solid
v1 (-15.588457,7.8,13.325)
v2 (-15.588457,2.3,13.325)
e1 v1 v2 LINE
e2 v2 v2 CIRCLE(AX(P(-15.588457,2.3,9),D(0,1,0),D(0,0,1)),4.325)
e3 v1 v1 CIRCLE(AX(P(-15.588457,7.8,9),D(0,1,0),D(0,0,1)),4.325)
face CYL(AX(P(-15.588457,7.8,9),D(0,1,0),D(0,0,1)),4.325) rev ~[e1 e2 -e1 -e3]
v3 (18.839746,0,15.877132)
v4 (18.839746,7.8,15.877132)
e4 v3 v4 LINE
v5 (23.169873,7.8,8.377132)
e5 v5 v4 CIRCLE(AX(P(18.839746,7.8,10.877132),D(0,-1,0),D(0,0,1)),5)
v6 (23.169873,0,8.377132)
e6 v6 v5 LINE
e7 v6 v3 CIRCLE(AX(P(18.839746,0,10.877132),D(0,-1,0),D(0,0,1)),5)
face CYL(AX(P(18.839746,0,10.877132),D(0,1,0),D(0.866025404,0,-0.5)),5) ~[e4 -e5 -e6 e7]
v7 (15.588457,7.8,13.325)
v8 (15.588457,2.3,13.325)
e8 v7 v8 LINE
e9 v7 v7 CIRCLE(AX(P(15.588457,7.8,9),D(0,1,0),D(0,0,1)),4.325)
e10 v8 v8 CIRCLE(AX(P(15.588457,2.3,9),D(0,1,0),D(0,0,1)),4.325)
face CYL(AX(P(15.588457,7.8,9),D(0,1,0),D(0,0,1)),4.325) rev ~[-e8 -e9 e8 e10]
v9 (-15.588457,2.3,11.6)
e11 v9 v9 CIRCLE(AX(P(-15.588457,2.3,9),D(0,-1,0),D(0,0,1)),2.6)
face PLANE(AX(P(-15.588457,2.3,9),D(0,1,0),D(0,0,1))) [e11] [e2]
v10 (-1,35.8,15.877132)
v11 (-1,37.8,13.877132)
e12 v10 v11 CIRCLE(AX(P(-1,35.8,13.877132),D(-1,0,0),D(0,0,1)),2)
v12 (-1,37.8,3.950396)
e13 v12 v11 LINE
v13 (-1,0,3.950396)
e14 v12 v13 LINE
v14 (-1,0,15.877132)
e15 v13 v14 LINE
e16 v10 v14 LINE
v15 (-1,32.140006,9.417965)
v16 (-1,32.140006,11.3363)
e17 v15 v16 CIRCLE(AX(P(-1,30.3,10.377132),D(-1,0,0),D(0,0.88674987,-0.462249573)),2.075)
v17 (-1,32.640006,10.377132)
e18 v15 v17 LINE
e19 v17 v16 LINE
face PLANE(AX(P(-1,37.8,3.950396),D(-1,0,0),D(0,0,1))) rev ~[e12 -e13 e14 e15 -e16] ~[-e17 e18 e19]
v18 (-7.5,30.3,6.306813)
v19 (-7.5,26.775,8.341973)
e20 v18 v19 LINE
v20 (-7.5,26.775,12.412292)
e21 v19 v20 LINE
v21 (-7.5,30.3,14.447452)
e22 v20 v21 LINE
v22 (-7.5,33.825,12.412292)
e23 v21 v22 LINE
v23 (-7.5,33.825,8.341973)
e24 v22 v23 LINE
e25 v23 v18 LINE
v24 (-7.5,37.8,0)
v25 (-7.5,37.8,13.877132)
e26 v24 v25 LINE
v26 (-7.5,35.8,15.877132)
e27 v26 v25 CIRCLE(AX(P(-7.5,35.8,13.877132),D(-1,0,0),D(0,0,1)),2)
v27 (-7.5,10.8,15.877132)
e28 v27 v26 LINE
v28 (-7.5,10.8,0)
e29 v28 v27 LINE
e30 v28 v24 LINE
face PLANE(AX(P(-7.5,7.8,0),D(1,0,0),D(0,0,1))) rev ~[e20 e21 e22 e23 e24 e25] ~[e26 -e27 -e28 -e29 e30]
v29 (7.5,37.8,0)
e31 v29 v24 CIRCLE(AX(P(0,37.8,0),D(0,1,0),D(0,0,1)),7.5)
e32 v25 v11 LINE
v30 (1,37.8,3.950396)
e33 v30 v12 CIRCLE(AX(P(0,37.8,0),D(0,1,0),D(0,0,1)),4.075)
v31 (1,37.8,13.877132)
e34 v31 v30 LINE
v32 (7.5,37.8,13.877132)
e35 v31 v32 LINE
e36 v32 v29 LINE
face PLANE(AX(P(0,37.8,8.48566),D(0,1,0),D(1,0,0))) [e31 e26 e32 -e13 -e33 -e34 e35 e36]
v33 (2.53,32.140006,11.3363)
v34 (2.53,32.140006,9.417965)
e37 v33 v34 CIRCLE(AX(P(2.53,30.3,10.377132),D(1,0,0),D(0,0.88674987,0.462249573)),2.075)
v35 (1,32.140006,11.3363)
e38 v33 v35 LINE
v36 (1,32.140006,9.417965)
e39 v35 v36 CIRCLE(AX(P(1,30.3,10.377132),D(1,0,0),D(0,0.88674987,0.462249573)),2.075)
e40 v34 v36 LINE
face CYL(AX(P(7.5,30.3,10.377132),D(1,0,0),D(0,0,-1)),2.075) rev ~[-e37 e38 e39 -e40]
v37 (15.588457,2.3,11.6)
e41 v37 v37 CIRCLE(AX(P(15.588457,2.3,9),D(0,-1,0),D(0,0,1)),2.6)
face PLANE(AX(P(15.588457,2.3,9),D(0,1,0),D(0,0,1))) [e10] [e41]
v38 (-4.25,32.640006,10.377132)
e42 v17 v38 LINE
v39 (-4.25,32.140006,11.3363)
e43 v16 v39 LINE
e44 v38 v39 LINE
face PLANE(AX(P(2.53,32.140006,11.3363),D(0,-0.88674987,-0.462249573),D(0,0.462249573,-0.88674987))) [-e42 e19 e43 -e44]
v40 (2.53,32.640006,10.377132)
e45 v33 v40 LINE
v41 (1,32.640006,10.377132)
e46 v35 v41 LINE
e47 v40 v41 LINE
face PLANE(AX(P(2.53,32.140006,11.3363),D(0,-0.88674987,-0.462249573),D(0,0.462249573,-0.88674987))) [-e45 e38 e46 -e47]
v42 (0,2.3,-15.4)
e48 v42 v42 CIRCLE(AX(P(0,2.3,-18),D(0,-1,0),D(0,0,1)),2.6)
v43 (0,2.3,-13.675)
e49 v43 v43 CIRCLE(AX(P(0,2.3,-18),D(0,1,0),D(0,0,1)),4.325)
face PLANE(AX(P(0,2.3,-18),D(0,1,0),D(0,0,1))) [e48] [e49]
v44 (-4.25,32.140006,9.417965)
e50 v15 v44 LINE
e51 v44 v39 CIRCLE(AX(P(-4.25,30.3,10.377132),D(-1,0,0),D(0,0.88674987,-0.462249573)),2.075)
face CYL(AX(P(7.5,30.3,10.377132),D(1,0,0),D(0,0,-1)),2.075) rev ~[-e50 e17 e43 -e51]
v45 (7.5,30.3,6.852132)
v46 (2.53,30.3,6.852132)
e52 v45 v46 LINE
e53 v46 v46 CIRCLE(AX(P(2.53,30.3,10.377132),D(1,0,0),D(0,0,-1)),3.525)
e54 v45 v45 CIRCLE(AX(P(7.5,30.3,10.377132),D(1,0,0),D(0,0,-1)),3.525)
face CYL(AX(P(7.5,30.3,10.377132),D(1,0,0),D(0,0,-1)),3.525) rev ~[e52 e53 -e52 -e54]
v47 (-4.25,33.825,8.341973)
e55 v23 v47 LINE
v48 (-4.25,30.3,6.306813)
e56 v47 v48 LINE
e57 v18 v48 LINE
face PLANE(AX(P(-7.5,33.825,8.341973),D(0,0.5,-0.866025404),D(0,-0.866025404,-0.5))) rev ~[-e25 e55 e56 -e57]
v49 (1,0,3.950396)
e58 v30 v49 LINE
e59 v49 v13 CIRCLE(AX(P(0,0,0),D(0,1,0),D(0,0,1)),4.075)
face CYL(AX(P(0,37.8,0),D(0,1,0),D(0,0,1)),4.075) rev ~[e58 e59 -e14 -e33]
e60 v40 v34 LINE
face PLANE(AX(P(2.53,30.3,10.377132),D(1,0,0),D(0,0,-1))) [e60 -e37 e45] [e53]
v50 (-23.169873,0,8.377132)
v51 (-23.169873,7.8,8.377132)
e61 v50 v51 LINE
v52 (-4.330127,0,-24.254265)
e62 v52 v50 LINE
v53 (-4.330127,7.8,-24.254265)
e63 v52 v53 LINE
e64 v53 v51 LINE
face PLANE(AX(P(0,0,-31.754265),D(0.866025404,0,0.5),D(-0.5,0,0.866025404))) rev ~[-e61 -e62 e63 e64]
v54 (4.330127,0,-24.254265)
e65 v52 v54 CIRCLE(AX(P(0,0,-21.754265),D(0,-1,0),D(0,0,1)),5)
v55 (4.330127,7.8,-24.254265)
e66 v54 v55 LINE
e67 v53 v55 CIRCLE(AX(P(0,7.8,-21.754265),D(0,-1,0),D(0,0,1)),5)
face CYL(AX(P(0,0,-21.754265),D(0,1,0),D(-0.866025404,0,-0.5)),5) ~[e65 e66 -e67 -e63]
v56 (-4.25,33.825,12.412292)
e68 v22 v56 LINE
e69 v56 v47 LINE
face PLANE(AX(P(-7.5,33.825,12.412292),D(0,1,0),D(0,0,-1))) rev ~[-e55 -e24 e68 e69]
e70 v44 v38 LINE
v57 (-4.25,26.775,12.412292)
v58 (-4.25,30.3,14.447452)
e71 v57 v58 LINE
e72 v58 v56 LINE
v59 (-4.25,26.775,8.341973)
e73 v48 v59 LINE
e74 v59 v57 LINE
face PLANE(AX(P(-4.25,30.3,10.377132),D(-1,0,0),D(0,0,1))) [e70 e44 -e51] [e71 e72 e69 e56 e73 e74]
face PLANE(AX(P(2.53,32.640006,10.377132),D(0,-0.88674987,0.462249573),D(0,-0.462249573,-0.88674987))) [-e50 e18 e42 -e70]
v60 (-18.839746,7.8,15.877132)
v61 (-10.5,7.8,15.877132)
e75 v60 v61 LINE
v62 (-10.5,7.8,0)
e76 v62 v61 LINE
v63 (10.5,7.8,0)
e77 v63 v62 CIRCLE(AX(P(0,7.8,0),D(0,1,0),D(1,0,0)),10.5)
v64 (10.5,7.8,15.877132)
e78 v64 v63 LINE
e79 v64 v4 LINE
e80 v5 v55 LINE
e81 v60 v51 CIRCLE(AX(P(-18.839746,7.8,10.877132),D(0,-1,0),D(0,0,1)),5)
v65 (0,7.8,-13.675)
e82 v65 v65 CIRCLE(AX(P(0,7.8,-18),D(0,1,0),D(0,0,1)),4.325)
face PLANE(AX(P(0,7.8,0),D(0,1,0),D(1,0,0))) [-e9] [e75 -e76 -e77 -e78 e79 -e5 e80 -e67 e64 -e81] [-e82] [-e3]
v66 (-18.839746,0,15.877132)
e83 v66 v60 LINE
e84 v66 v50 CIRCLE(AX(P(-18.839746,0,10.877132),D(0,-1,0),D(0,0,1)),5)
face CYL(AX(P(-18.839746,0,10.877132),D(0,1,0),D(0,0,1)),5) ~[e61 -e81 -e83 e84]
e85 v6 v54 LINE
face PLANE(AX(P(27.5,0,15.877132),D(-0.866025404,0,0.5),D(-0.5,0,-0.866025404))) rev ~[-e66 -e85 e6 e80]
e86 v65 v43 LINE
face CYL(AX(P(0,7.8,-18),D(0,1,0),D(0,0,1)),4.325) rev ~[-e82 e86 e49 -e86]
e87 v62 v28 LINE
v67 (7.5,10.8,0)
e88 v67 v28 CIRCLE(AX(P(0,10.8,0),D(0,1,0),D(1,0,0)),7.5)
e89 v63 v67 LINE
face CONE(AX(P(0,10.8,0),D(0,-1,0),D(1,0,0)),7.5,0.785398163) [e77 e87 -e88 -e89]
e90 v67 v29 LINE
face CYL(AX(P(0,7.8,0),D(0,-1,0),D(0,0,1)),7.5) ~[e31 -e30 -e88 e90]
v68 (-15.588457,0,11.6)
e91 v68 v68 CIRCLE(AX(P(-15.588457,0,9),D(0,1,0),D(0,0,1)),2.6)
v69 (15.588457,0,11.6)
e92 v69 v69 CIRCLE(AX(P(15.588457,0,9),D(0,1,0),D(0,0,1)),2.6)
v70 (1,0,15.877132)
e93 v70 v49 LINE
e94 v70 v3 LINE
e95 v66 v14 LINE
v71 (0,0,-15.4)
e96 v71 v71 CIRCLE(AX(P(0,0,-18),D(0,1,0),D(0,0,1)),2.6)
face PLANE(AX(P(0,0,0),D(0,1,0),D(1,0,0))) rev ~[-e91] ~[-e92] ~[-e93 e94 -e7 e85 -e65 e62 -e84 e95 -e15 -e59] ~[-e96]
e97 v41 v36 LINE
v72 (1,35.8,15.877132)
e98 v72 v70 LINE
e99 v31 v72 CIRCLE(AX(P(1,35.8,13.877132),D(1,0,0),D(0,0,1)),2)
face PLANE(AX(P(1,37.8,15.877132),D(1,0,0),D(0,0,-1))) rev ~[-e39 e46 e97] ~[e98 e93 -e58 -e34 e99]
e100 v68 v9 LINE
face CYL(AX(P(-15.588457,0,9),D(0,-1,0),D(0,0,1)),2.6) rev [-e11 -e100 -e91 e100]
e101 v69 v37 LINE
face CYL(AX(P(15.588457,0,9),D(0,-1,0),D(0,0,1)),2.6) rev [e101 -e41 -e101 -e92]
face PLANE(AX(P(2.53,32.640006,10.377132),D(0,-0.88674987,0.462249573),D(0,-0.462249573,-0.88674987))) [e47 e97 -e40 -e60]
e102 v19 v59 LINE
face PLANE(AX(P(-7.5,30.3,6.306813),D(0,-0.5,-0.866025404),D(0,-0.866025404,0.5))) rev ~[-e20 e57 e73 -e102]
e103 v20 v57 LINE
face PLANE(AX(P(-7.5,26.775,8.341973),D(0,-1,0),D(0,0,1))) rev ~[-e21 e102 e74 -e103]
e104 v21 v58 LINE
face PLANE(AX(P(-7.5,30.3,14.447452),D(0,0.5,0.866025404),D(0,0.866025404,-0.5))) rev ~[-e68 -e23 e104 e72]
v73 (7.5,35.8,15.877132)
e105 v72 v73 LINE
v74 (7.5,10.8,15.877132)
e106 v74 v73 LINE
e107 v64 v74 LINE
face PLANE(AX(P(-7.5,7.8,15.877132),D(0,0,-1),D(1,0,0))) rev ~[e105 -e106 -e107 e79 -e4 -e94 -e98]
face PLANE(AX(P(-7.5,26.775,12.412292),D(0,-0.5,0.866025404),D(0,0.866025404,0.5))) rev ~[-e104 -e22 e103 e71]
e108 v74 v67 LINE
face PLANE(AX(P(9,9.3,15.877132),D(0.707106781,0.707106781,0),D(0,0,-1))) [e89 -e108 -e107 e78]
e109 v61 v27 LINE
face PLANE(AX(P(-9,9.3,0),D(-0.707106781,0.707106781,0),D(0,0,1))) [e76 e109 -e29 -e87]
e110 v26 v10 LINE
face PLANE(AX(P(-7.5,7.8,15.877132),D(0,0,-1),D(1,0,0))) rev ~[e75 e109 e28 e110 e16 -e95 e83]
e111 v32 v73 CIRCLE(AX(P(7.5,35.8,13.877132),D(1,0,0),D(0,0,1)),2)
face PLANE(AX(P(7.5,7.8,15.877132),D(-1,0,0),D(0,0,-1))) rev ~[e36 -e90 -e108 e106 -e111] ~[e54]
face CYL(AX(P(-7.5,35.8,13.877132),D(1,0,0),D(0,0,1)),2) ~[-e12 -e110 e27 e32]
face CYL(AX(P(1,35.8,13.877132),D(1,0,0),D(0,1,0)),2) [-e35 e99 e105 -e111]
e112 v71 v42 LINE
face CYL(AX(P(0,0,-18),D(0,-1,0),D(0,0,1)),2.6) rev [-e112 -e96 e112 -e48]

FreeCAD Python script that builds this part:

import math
import FreeCAD as App
import Part
import Sketcher
from FreeCAD import Vector
Q = App.Units.Quantity


def edges_at(feature, points):
    """Names of the edges that pass closest to the given points."""
    edges = feature.Shape.Edges
    near = lambda p: min(range(len(edges)), key=lambda i: edges[i].distToShape(Part.Vertex(*p))[0])
    return sorted({f"Edge{near(p) + 1}" for p in points})


def add_polygon(sketch, points):
    """Adds a closed chain of lines whose ends are joined by coincident constraints."""
    first, n = sketch.GeometryCount, len(points)
    for a, b in zip(points, points[1:] + points[:1]):
        sketch.addGeometry(Part.LineSegment(App.Vector(*a, 0), App.Vector(*b, 0)), False)
    for i in range(n):
        sketch.addConstraint(Sketcher.Constraint("Coincident", first + i, 2, first + (i + 1) % n, 1))

doc = App.newDocument("Part")
body = doc.addObject("PartDesign::Body", "Body")

# Sketch on XZ plane
sketch1 = doc.addObject("Sketcher::SketchObject", "Sketch")
body.addObject(sketch1)
sketch1.AttachmentSupport = (doc.XZ_Plane, [""])
sketch1.MapMode = "FlatFace"
add_polygon(sketch1, [(-27.5, 15.877132), (27.5, 15.877132), (0, -31.754265)])  # lines 0-2
sketch1.addGeometry(Part.Circle(Vector(-15.588457, 9, 0), Vector(0, 0, 1), 2.6), False)  # 3
sketch1.addGeometry(Part.Circle(Vector(15.588457, 9, 0), Vector(0, 0, 1), 2.6), False)  # 4
sketch1.addGeometry(Part.Circle(Vector(0, -18, 0), Vector(0, 0, 1), 2.6), False)  # 5
sketch1.addConstraint(Sketcher.Constraint("Horizontal", 0))
sketch1.addConstraint(Sketcher.Constraint("Equal", 3, 4))
sketch1.addConstraint(Sketcher.Constraint("Equal", 4, 5))
sketch1.addConstraint(Sketcher.Constraint("Symmetric", 3, 3, 4, 3, -2))
sketch1.addConstraint(Sketcher.Constraint("PointOnObject", 5, 3, -2))
sketch1.addConstraint(Sketcher.Constraint("PointOnObject", 1, 2, -2))
sketch1.addConstraint(Sketcher.Constraint("Equal", 1, 2))
sketch1.addConstraint(Sketcher.Constraint("Diameter", 3, Q("5.2 mm")))
sketch1.addConstraint(Sketcher.Constraint("DistanceX", 0, 1, 0, 2, Q("55 mm")))
sketch1.addConstraint(Sketcher.Constraint("Angle", 1, Q("-120 deg")))
sketch1.addConstraint(Sketcher.Constraint("DistanceY", -1, 1, 3, 3, Q("9 mm")))
sketch1.addConstraint(Sketcher.Constraint("DistanceY", 5, 3, -1, 1, Q("18 mm")))
sketch1.addConstraint(Sketcher.Constraint("DistanceX", 3, 3, -1, 1, Q("15.588457 mm")))
sketch1.addConstraint(Sketcher.Constraint("DistanceY", -1, 1, 0, 2, Q("15.877132 mm")))
pad1 = doc.addObject("PartDesign::Pad", "Pad")
body.addObject(pad1)
pad1.Profile = sketch1
pad1.Length = 7.8
pad1.Reversed = True

# Sketch on XZ plane
sketch2 = doc.addObject("Sketcher::SketchObject", "Sketch001")
body.addObject(sketch2)
sketch2.AttachmentSupport = (doc.XZ_Plane, [""])
sketch2.MapMode = "FlatFace"
sketch2.AttachmentOffset = App.Placement(Vector(0, 0, -7.8), App.Rotation())
sketch2.addGeometry(Part.Circle(Vector(0, 0, 0), Vector(0, 0, 1), 7.5), False)
sketch2.addConstraint(Sketcher.Constraint("Coincident", 0, 3, -1, 1))
sketch2.addConstraint(Sketcher.Constraint("Diameter", 0, Q("15 mm")))
pad2 = doc.addObject("PartDesign::Pad", "Pad001")
body.addObject(pad2)
pad2.Profile = sketch2
pad2.Length = 30
pad2.Reversed = True

# Sketch on XZ plane
sketch3 = doc.addObject("Sketcher::SketchObject", "Sketch002")
body.addObject(sketch3)
sketch3.AttachmentSupport = (doc.XZ_Plane, [""])
sketch3.MapMode = "FlatFace"
sketch3.AttachmentOffset = App.Placement(Vector(0, 0, -7.8), App.Rotation())
sketch3.addGeometry(Part.LineSegment(Vector(-7.5, 0, 0), Vector(-7.5, 15.877132, 0)), False)
sketch3.addGeometry(Part.LineSegment(Vector(-7.5, 15.877132, 0), Vector(7.5, 15.877132, 0)), False)
sketch3.addGeometry(Part.LineSegment(Vector(7.5, 15.877132, 0), Vector(7.5, 0, 0)), False)
sketch3.addGeometry(Part.ArcOfCircle(Part.Circle(Vector(0, 0, 0), Vector(0, 0, 1), 7.5), math.radians(0), math.radians(180)), False)
sketch3.addConstraint(Sketcher.Constraint("Coincident", 0, 2, 1, 1))
sketch3.addConstraint(Sketcher.Constraint("Coincident", 1, 2, 2, 1))
sketch3.addConstraint(Sketcher.Constraint("Tangent", 2, 2, 3, 1))
sketch3.addConstraint(Sketcher.Constraint("Tangent", 3, 2, 0, 1))
sketch3.addConstraint(Sketcher.Constraint("Vertical", 0))
sketch3.addConstraint(Sketcher.Constraint("Horizontal", 1))
sketch3.addConstraint(Sketcher.Constraint("Vertical", 2))
sketch3.addConstraint(Sketcher.Constraint("Coincident", 3, 3, -1, 1))
sketch3.addConstraint(Sketcher.Constraint("Radius", 3, Q("7.5 mm")))
sketch3.addConstraint(Sketcher.Constraint("DistanceY", 0, 1, 0, 2, Q("15.877132 mm")))
pad3 = doc.addObject("PartDesign::Pad", "Pad002")
body.addObject(pad3)
pad3.Profile = sketch3
pad3.Length = 30
pad3.Reversed = True

# Sketch on XZ plane
sketch4 = doc.addObject("Sketcher::SketchObject", "Sketch003")
body.addObject(sketch4)
sketch4.AttachmentSupport = (doc.XZ_Plane, [""])
sketch4.MapMode = "FlatFace"
sketch4.AttachmentOffset = App.Placement(Vector(0, 0, -37.8), App.Rotation())
sketch4.addGeometry(Part.Circle(Vector(0, 0, 0), Vector(0, 0, 1), 4.075), False)
sketch4.addConstraint(Sketcher.Constraint("Coincident", 0, 3, -1, 1))
sketch4.addConstraint(Sketcher.Constraint("Diameter", 0, Q("8.15 mm")))
pocket1 = doc.addObject("PartDesign::Pocket", "Pocket")
body.addObject(pocket1)
pocket1.Profile = sketch4
pocket1.Type = "ThroughAll"
pocket1.Reversed = True

# Sketch on XZ plane
sketch5 = doc.addObject("Sketcher::SketchObject", "Sketch004")
body.addObject(sketch5)
sketch5.AttachmentSupport = (doc.XZ_Plane, [""])
sketch5.MapMode = "FlatFace"
sketch5.AttachmentOffset = App.Placement(Vector(0, 0, -37.8), App.Rotation())
sketch5.addGeometry(Part.LineSegment(Vector(-1, 3.950396, 0), Vector(-1, 15.877132, 0)), False)
sketch5.addGeometry(Part.LineSegment(Vector(-1, 15.877132, 0), Vector(1, 15.877132, 0)), False)
sketch5.addGeometry(Part.LineSegment(Vector(1, 15.877132, 0), Vector(1, 3.950396, 0)), False)
sketch5.addGeometry(Part.ArcOfCircle(Part.Circle(Vector(0, 0, 0), Vector(0, 0, 1), 4.075), math.radians(75.794599), math.radians(104.205401)), False)
sketch5.addConstraint(Sketcher.Constraint("Coincident", 0, 2, 1, 1))
sketch5.addConstraint(Sketcher.Constraint("Coincident", 1, 2, 2, 1))
sketch5.addConstraint(Sketcher.Constraint("Coincident", 2, 2, 3, 1))
sketch5.addConstraint(Sketcher.Constraint("Coincident", 3, 2, 0, 1))
sketch5.addConstraint(Sketcher.Constraint("Vertical", 0))
sketch5.addConstraint(Sketcher.Constraint("Horizontal", 1))
sketch5.addConstraint(Sketcher.Constraint("Vertical", 2))
sketch5.addConstraint(Sketcher.Constraint("Coincident", 3, 3, -1, 1))
sketch5.addConstraint(Sketcher.Constraint("Horizontal", 2, 2, 3, 2))
sketch5.addConstraint(Sketcher.Constraint("DistanceX", 1, 1, 1, 2, Q("2 mm")))
sketch5.addConstraint(Sketcher.Constraint("Radius", 3, Q("4.075 mm")))
sketch5.addConstraint(Sketcher.Constraint("DistanceY", 0, 1, 0, 2, Q("11.926737 mm")))
pocket2 = doc.addObject("PartDesign::Pocket", "Pocket001")
body.addObject(pocket2)
pocket2.Profile = sketch5
pocket2.Type = "ThroughAll"
pocket2.Reversed = True
doc.recompute()

fillet = doc.addObject("PartDesign::Fillet", "Fillet")
body.addObject(fillet)
fillet.Base = (pocket2, edges_at(pocket2, [(0, 3.9, -31.754), (27.5, 3.9, 15.877), (-27.5, 3.9, 15.877)]))
fillet.Radius = 5

# Sketch on YZ plane
sketch6 = doc.addObject("Sketcher::SketchObject", "Sketch005")
body.addObject(sketch6)
sketch6.AttachmentSupport = (doc.YZ_Plane, [""])
sketch6.MapMode = "FlatFace"
sketch6.AttachmentOffset = App.Placement(Vector(0, 0, 7.5), App.Rotation())
sketch6.addGeometry(Part.Circle(Vector(30.3, 10.377132, 0), Vector(0, 0, 1), 2.075), False)
sketch6.addConstraint(Sketcher.Constraint("Diameter", 0, Q("4.15 mm")))
sketch6.addConstraint(Sketcher.Constraint("DistanceX", -1, 1, 0, 3, Q("30.3 mm")))
sketch6.addConstraint(Sketcher.Constraint("DistanceY", -1, 1, 0, 3, Q("10.377132 mm")))
pocket3 = doc.addObject("PartDesign::Pocket", "Pocket002")
body.addObject(pocket3)
pocket3.Profile = sketch6
pocket3.Type = "ThroughAll"

# Sketch on YZ plane
sketch7 = doc.addObject("Sketcher::SketchObject", "Sketch006")
body.addObject(sketch7)
sketch7.AttachmentSupport = (doc.YZ_Plane, [""])
sketch7.MapMode = "FlatFace"
sketch7.AttachmentOffset = App.Placement(Vector(0, 0, -7.5), App.Rotation())
add_polygon(sketch7, [(33.825, 12.412292), (33.825, 8.341973), (30.3, 6.306813), (26.775, 8.341973), (26.775, 12.412292), (30.3, 14.447452)])  # lines 0-5
sketch7.addConstraint(Sketcher.Constraint("Vertical", 0))
sketch7.addConstraint(Sketcher.Constraint("Vertical", 3))
sketch7.addConstraint(Sketcher.Constraint("Parallel", 1, 4))
sketch7.addConstraint(Sketcher.Constraint("Parallel", 2, 5))
sketch7.addConstraint(Sketcher.Constraint("Horizontal", 0, 2, 2, 2))
sketch7.addConstraint(Sketcher.Constraint("Horizontal", 3, 2, 5, 2))
sketch7.addConstraint(Sketcher.Constraint("Vertical", 1, 2, 4, 2))
sketch7.addConstraint(Sketcher.Constraint("Angle", 1, Q("-150 deg")))
sketch7.addConstraint(Sketcher.Constraint("DistanceX", -1, 1, 1, 2, Q("30.3 mm")))
sketch7.addConstraint(Sketcher.Constraint("DistanceX", 2, 2, 0, 2, Q("7.05 mm")))
sketch7.addConstraint(Sketcher.Constraint("DistanceY", 0, 2, 0, 1, Q("4.070319 mm")))
sketch7.addConstraint(Sketcher.Constraint("DistanceY", -1, 1, 4, 2, Q("14.447452 mm")))
pocket4 = doc.addObject("PartDesign::Pocket", "Pocket003")
body.addObject(pocket4)
pocket4.Profile = sketch7
pocket4.Length = 3.25
pocket4.Reversed = True
doc.recompute()

chamfer = doc.addObject("PartDesign::Chamfer", "Chamfer")
body.addObject(chamfer)
chamfer.Base = (pocket4, edges_at(pocket4, [(0, 7.8, -7.5), (7.5, 7.8, 7.939), (-7.5, 7.8, 7.939)]))
chamfer.Size = 3

# Sketch on YZ plane
sketch8 = doc.addObject("Sketcher::SketchObject", "Sketch007")
body.addObject(sketch8)
sketch8.AttachmentSupport = (doc.YZ_Plane, [""])
sketch8.MapMode = "FlatFace"
sketch8.AttachmentOffset = App.Placement(Vector(0, 0, 7.5), App.Rotation())
sketch8.addGeometry(Part.Circle(Vector(30.3, 10.377132, 0), Vector(0, 0, 1), 3.525), False)
sketch8.addConstraint(Sketcher.Constraint("Diameter", 0, Q("7.05 mm")))
sketch8.addConstraint(Sketcher.Constraint("DistanceX", -1, 1, 0, 3, Q("30.3 mm")))
sketch8.addConstraint(Sketcher.Constraint("DistanceY", -1, 1, 0, 3, Q("10.377132 mm")))
pocket5 = doc.addObject("PartDesign::Pocket", "Pocket004")
body.addObject(pocket5)
pocket5.Profile = sketch8
pocket5.Length = 4.97
doc.recompute()

fillet2 = doc.addObject("PartDesign::Fillet", "Fillet001")
body.addObject(fillet2)
fillet2.Base = (pocket5, edges_at(pocket5, [(-4.25, 37.8, 15.877), (4.25, 37.8, 15.877)]))
fillet2.Radius = 2

# Sketch on XZ plane
sketch9 = doc.addObject("Sketcher::SketchObject", "Sketch008")
body.addObject(sketch9)
sketch9.AttachmentSupport = (doc.XZ_Plane, [""])
sketch9.MapMode = "FlatFace"
sketch9.AttachmentOffset = App.Placement(Vector(0, 0, -7.8), App.Rotation())
sketch9.addGeometry(Part.Circle(Vector(0, -18, 0), Vector(0, 0, 1), 4.325), False)
sketch9.addGeometry(Part.Circle(Vector(-15.588457, 9, 0), Vector(0, 0, 1), 4.325), False)
sketch9.addGeometry(Part.Circle(Vector(15.588457, 9, 0), Vector(0, 0, 1), 4.325), False)
sketch9.addConstraint(Sketcher.Constraint("Equal", 0, 1))
sketch9.addConstraint(Sketcher.Constraint("Equal", 1, 2))
sketch9.addConstraint(Sketcher.Constraint("Symmetric", 1, 3, 2, 3, -2))
sketch9.addConstraint(Sketcher.Constraint("PointOnObject", 0, 3, -2))
sketch9.addConstraint(Sketcher.Constraint("Diameter", 0, Q("8.65 mm")))
sketch9.addConstraint(Sketcher.Constraint("DistanceY", 0, 3, -1, 1, Q("18 mm")))
sketch9.addConstraint(Sketcher.Constraint("DistanceY", -1, 1, 1, 3, Q("9 mm")))
sketch9.addConstraint(Sketcher.Constraint("DistanceX", 1, 3, -1, 1, Q("15.588457 mm")))
pocket6 = doc.addObject("PartDesign::Pocket", "Pocket005")
body.addObject(pocket6)
pocket6.Profile = sketch9
pocket6.Length = 5.5
pocket6.Reversed = True

# Sketch on YZ plane
sketch10 = doc.addObject("Sketcher::SketchObject", "Sketch009")
body.addObject(sketch10)
sketch10.AttachmentSupport = (doc.YZ_Plane, [""])
sketch10.MapMode = "FlatFace"
sketch10.AttachmentOffset = App.Placement(Vector(0, 0, 2.53), App.Rotation())
add_polygon(sketch10, [(32.640006, 10.377132), (32.140006, 11.3363), (32.140006, 9.417965)])  # lines 0-2
sketch10.addConstraint(Sketcher.Constraint("Vertical", 1))
sketch10.addConstraint(Sketcher.Constraint("Equal", 0, 2))
sketch10.addConstraint(Sketcher.Constraint("DistanceX", 0, 2, 2, 2, Q("0.5 mm")))
sketch10.addConstraint(Sketcher.Constraint("DistanceY", -1, 1, 0, 2, Q("11.3363 mm")))
sketch10.addConstraint(Sketcher.Constraint("DistanceY", 1, 2, 1, 1, Q("1.918336 mm")))
sketch10.addConstraint(Sketcher.Constraint("DistanceX", -1, 1, 0, 2, Q("32.140006 mm")))
pocket7 = doc.addObject("PartDesign::Pocket", "Pocket006")
body.addObject(pocket7)
pocket7.Profile = sketch10
pocket7.Type = "ThroughAll"

doc.recompute()
